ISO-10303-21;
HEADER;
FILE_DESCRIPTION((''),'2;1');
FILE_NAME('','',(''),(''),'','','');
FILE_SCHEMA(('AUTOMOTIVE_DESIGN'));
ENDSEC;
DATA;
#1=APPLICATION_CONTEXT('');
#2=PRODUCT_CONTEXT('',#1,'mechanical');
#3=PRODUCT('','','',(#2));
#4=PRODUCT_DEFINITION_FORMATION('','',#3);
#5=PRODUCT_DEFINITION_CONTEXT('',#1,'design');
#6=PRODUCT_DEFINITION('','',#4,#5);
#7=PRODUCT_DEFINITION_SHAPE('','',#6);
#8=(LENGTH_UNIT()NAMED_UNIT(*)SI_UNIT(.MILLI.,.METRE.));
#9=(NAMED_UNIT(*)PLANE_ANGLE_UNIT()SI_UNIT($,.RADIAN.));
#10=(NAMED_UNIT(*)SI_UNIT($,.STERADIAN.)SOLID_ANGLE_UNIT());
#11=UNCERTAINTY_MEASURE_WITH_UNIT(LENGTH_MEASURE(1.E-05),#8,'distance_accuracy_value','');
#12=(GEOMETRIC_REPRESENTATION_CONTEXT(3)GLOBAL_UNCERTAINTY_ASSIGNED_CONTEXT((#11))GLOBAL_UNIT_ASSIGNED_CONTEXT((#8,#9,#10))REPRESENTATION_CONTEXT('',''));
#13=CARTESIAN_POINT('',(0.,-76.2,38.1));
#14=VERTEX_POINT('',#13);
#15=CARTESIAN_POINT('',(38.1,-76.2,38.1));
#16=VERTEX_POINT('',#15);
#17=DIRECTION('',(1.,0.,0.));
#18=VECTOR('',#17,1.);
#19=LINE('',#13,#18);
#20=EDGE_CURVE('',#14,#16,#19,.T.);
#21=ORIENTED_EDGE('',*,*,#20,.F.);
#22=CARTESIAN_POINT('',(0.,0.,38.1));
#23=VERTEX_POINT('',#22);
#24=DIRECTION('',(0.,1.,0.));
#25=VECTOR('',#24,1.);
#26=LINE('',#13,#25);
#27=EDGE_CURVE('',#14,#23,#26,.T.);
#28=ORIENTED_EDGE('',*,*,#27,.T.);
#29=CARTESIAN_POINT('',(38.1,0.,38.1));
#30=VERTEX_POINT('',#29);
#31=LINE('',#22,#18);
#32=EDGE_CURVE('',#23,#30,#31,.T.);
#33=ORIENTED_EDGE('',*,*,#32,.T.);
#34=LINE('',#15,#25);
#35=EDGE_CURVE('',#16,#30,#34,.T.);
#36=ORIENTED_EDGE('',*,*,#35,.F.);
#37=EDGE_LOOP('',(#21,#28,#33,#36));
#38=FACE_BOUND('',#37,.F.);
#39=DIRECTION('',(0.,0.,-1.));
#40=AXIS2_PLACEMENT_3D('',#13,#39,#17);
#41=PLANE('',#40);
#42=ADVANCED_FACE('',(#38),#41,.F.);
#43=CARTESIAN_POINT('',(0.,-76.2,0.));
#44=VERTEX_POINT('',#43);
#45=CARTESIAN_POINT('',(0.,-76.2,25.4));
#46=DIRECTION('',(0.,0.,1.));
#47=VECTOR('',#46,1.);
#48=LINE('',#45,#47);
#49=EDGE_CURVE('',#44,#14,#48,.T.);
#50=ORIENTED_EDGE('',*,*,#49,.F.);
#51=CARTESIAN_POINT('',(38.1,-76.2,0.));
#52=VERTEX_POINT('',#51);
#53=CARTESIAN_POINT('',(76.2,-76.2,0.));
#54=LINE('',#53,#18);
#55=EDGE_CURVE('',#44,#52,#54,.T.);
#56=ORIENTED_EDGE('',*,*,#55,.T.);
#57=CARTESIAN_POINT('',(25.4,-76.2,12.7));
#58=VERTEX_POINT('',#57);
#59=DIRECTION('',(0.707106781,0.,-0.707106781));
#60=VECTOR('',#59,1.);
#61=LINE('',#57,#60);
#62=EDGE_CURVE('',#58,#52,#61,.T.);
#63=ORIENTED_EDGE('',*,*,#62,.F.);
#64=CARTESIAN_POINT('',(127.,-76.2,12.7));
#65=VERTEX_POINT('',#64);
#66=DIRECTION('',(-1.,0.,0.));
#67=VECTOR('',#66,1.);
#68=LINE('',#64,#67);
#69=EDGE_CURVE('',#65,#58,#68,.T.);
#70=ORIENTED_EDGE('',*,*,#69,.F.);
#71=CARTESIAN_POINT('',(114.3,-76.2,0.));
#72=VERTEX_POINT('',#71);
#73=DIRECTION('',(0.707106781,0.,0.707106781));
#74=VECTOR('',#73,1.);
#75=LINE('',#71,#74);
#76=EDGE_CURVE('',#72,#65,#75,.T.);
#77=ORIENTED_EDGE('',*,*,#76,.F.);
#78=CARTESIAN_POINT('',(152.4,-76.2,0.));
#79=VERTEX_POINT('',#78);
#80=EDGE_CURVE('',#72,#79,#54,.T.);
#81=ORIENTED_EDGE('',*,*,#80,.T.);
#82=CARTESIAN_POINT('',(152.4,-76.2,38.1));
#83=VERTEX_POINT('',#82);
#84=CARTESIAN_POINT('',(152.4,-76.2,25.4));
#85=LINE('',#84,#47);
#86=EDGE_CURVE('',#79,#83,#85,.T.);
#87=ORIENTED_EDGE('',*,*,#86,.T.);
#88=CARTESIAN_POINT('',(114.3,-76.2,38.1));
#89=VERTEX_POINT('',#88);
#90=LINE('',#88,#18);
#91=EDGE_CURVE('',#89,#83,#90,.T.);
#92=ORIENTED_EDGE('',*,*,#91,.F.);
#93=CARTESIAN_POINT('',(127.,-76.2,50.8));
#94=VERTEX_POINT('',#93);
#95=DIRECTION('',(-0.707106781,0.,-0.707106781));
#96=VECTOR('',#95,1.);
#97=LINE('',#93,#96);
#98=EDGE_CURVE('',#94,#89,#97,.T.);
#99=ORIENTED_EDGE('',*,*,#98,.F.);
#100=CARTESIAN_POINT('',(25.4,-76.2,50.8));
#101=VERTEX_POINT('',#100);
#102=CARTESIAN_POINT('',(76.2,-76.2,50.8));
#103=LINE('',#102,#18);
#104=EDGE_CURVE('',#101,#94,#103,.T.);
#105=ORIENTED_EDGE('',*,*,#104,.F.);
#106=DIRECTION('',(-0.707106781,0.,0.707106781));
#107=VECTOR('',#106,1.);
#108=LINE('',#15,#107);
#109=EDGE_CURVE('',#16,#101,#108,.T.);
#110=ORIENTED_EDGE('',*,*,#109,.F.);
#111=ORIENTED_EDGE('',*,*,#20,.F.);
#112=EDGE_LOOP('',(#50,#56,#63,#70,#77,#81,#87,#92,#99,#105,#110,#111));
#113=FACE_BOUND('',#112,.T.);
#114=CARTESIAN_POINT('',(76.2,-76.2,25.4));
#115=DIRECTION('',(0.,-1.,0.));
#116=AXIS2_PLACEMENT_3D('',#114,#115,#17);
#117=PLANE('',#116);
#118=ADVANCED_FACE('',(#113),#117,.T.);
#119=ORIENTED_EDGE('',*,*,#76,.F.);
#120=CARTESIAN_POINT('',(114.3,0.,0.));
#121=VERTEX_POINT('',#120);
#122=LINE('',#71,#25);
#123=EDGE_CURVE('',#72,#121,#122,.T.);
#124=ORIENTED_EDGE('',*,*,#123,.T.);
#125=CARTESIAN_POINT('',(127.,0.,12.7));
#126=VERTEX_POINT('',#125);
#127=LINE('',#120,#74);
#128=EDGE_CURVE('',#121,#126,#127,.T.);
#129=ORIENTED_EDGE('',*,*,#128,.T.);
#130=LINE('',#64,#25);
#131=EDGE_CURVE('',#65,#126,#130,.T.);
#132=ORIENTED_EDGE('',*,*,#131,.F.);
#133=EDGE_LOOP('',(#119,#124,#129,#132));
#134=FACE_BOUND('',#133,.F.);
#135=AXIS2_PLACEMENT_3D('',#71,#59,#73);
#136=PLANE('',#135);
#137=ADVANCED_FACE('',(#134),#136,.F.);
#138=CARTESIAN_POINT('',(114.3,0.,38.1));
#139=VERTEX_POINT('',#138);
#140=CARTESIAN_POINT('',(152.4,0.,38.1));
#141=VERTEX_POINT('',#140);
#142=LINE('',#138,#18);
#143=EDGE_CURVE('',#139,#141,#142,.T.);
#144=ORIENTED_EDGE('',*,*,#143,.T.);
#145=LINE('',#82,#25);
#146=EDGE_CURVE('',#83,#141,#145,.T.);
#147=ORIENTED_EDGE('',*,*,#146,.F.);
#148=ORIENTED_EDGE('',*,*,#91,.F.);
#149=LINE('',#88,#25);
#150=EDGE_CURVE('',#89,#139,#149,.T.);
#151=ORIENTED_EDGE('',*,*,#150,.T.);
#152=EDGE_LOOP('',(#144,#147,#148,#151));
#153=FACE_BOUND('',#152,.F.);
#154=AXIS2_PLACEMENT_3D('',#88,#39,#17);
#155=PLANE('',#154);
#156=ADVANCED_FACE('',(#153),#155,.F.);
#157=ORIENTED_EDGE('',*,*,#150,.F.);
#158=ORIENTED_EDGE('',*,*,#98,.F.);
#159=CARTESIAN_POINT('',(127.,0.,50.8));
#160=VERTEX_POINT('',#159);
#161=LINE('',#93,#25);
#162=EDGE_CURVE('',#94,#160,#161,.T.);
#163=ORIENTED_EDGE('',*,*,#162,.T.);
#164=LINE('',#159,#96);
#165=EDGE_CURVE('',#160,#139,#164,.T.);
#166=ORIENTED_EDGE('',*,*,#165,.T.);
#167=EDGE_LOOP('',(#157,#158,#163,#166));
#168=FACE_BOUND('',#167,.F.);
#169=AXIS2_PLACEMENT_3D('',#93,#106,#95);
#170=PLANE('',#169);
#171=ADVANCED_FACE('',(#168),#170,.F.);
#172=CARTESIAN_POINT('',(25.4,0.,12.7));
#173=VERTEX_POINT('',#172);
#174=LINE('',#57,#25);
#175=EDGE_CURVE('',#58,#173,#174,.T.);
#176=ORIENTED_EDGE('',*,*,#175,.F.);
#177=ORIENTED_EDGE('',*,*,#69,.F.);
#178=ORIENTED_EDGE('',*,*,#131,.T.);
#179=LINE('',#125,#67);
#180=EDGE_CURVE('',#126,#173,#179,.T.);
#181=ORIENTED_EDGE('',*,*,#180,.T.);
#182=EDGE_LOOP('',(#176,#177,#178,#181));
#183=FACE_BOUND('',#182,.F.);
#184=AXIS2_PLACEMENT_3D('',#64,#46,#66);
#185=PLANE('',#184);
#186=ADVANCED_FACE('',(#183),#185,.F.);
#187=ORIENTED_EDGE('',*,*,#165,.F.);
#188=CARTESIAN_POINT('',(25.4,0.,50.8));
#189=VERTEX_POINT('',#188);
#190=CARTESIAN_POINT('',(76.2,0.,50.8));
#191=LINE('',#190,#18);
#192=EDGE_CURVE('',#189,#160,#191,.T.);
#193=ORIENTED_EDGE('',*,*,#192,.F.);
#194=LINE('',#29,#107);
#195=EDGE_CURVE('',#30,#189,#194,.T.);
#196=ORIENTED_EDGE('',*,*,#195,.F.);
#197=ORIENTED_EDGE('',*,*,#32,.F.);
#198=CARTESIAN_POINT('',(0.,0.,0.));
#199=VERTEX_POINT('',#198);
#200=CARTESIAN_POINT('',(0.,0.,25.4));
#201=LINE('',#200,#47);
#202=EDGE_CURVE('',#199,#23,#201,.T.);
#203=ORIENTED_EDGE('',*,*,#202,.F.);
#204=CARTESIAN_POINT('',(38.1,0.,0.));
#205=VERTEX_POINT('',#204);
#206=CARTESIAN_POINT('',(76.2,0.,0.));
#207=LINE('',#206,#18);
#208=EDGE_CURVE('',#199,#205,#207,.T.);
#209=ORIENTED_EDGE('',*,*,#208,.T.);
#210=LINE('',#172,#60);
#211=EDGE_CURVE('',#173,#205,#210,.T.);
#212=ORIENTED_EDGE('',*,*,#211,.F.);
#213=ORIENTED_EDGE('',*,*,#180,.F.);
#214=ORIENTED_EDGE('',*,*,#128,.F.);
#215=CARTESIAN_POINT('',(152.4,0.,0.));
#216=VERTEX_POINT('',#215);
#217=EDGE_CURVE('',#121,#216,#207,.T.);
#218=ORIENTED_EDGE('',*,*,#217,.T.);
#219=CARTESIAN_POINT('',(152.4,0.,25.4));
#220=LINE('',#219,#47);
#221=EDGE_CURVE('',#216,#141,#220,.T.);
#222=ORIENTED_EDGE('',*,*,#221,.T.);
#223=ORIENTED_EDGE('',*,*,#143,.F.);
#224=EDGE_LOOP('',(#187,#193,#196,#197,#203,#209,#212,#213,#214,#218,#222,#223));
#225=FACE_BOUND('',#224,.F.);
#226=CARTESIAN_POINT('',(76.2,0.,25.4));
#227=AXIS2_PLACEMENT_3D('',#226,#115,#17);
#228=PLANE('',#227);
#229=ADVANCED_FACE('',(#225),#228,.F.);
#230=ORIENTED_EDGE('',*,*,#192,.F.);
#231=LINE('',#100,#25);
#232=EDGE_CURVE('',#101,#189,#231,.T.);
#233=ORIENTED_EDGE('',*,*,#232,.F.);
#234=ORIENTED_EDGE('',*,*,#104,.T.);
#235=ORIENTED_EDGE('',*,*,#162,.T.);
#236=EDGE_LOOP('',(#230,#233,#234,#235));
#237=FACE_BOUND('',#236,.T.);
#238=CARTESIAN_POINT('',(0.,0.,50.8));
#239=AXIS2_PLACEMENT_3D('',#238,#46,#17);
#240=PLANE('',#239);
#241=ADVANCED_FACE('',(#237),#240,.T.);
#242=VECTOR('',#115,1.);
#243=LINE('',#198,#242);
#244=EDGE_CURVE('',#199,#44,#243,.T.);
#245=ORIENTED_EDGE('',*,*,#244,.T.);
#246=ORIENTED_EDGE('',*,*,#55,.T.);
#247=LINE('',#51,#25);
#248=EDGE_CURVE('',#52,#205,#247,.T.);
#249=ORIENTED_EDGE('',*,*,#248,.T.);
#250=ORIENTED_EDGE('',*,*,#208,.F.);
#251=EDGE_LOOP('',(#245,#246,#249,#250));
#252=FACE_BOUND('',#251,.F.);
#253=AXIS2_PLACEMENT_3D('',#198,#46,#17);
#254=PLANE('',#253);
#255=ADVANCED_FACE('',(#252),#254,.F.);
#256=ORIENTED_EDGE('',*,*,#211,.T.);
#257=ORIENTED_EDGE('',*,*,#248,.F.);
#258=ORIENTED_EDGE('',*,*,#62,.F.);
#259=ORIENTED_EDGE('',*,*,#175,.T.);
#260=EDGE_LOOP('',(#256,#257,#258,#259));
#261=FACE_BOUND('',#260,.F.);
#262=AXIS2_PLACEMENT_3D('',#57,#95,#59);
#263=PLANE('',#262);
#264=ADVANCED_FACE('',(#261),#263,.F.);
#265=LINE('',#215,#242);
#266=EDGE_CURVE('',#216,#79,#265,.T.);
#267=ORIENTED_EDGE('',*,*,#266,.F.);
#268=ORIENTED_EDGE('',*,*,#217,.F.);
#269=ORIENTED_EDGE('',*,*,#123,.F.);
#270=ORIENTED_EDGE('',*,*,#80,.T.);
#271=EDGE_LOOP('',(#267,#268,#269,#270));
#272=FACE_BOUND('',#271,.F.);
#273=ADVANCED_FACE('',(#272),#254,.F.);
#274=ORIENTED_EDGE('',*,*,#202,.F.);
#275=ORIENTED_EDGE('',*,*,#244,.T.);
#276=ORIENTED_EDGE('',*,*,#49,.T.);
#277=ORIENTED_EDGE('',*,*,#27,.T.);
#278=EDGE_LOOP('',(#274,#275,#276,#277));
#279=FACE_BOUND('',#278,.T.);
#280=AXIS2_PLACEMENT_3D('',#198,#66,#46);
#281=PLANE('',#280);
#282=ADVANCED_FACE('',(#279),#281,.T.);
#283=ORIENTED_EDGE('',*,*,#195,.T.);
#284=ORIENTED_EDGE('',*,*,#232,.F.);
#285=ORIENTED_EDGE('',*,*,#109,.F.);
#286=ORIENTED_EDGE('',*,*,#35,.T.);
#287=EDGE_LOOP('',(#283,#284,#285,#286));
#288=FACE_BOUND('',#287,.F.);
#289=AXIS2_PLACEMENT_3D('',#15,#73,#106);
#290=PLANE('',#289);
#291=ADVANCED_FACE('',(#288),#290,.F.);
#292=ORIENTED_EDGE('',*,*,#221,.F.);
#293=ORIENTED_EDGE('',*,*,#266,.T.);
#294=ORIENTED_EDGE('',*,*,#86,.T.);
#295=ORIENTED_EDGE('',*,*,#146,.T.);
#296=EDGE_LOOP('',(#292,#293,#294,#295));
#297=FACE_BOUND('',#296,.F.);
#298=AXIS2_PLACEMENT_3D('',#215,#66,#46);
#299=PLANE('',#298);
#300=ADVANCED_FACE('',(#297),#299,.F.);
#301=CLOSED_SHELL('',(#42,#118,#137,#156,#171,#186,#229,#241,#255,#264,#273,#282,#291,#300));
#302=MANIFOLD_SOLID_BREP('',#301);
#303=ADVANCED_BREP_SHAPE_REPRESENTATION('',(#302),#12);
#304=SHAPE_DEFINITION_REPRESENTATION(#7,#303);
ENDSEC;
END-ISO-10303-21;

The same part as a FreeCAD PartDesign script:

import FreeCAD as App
import Part
import Sketcher
from FreeCAD import Vector
Q = App.Units.Quantity

doc = App.newDocument("Part")
params = doc.addObject("Spreadsheet::Sheet", "Params")
for row, (alias, value) in enumerate([
    ("sketch1_width", "6 in"),
    ("sketch1_height", "2 in"),
    ("pad1_length", "3 in"),
    ("sketch2_width", "1 in"),
    ("sketch2_width2", "1.5 in"),
    ("sketch2_height", "0.5 in"),
    ("pocket1_length", "3 in"),
    ("sketch3_width", "1 in"),
    ("sketch3_width2", "1.5 in"),
    ("sketch3_height", "0.5 in"),
    ("pocket2_length", "3 in"),
    ("sketch4_width", "4 in"),
    ("sketch4_width2", "3 in"),
    ("pocket3_length", "3 in"),
], start=1):
    params.set(f"A{row}", alias)
    params.set(f"B{row}", "=" + value)
    params.setAlias(f"B{row}", alias)

body = doc.addObject("PartDesign::Body", "Body")

# Sketch on XZ plane
sketch1 = doc.addObject("Sketcher::SketchObject", "Sketch")
body.addObject(sketch1)
sketch1.AttachmentSupport = (doc.XZ_Plane, [""])
sketch1.MapMode = "FlatFace"
sketch1.addGeometry(Part.LineSegment(Vector(0, 51, 0), Vector(0, 0, 0)), False)
sketch1.addGeometry(Part.LineSegment(Vector(0, 0, 0), Vector(152, 0, 0)), False)
sketch1.addGeometry(Part.LineSegment(Vector(152, 0, 0), Vector(152, 51, 0)), False)
sketch1.addGeometry(Part.LineSegment(Vector(152, 51, 0), Vector(0, 51, 0)), False)
sketch1.addConstraint(Sketcher.Constraint("Coincident", 0, 2, 1, 1))
sketch1.addConstraint(Sketcher.Constraint("Coincident", 1, 2, 2, 1))
sketch1.addConstraint(Sketcher.Constraint("Coincident", 2, 2, 3, 1))
sketch1.addConstraint(Sketcher.Constraint("Coincident", 3, 2, 0, 1))
sketch1.addConstraint(Sketcher.Constraint("Vertical", 0))
sketch1.addConstraint(Sketcher.Constraint("Horizontal", 1))
sketch1.addConstraint(Sketcher.Constraint("Vertical", 2))
sketch1.addConstraint(Sketcher.Constraint("Horizontal", 3))
sketch1.addConstraint(Sketcher.Constraint("Coincident", 0, 2, -1, 1))
sketch1.addConstraint(Sketcher.Constraint("DistanceX", 1, 1, 1, 2, Q("6 in")))
sketch1.addConstraint(Sketcher.Constraint("DistanceY", 0, 2, 0, 1, Q("2 in")))
sketch1.setExpression("Constraints[9]", "Params.sketch1_width")
sketch1.setExpression("Constraints[10]", "Params.sketch1_height")
pad1 = doc.addObject("PartDesign::Pad", "Pad")
body.addObject(pad1)
pad1.Profile = sketch1
pad1.setExpression("Length", "Params.pad1_length")

# Sketch on XZ plane
sketch2 = doc.addObject("Sketcher::SketchObject", "Sketch001")
body.addObject(sketch2)
sketch2.AttachmentSupport = (doc.XZ_Plane, [""])
sketch2.MapMode = "FlatFace"
sketch2.AttachmentOffset = App.Placement(Vector(0, 0, 3 * 25.4), App.Rotation())
sketch2.addGeometry(Part.LineSegment(Vector(152, 38, 0), Vector(152, 51, 0)), False)
sketch2.addGeometry(Part.LineSegment(Vector(152, 51, 0), Vector(127, 51, 0)), False)
sketch2.addGeometry(Part.LineSegment(Vector(127, 51, 0), Vector(114, 38, 0)), False)
sketch2.addGeometry(Part.LineSegment(Vector(114, 38, 0), Vector(152, 38, 0)), False)
sketch2.addConstraint(Sketcher.Constraint("Coincident", 0, 2, 1, 1))
sketch2.addConstraint(Sketcher.Constraint("Coincident", 1, 2, 2, 1))
sketch2.addConstraint(Sketcher.Constraint("Coincident", 2, 2, 3, 1))
sketch2.addConstraint(Sketcher.Constraint("Coincident", 3, 2, 0, 1))
sketch2.addConstraint(Sketcher.Constraint("Vertical", 0))
sketch2.addConstraint(Sketcher.Constraint("Horizontal", 1))
sketch2.addConstraint(Sketcher.Constraint("Horizontal", 3))
sketch2.addConstraint(Sketcher.Constraint("DistanceX", 1, 2, 1, 1, Q("1 in")))
sketch2.addConstraint(Sketcher.Constraint("DistanceX", 3, 1, 3, 2, Q("1.5 in")))
sketch2.addConstraint(Sketcher.Constraint("DistanceY", 0, 1, 0, 2, Q("0.5 in")))
sketch2.addConstraint(Sketcher.Constraint("DistanceX", -1, 1, 0, 2, Q("6 in")))
sketch2.addConstraint(Sketcher.Constraint("DistanceY", -1, 1, 0, 2, Q("2 in")))
sketch2.setExpression("Constraints[7]", "Params.sketch2_width")
sketch2.setExpression("Constraints[8]", "Params.sketch2_width2")
sketch2.setExpression("Constraints[9]", "Params.sketch2_height")
pocket1 = doc.addObject("PartDesign::Pocket", "Pocket")
body.addObject(pocket1)
pocket1.Profile = sketch2
pocket1.setExpression("Length", "Params.pocket1_length")

# Sketch on XZ plane
sketch3 = doc.addObject("Sketcher::SketchObject", "Sketch002")
body.addObject(sketch3)
sketch3.AttachmentSupport = (doc.XZ_Plane, [""])
sketch3.MapMode = "FlatFace"
sketch3.AttachmentOffset = App.Placement(Vector(0, 0, 3 * 25.4), App.Rotation())
sketch3.addGeometry(Part.LineSegment(Vector(25, 51, 0), Vector(0, 51, 0)), False)
sketch3.addGeometry(Part.LineSegment(Vector(0, 51, 0), Vector(0, 38, 0)), False)
sketch3.addGeometry(Part.LineSegment(Vector(0, 38, 0), Vector(38, 38, 0)), False)
sketch3.addGeometry(Part.LineSegment(Vector(38, 38, 0), Vector(25, 51, 0)), False)
sketch3.addConstraint(Sketcher.Constraint("Coincident", 0, 2, 1, 1))
sketch3.addConstraint(Sketcher.Constraint("Coincident", 1, 2, 2, 1))
sketch3.addConstraint(Sketcher.Constraint("Coincident", 2, 2, 3, 1))
sketch3.addConstraint(Sketcher.Constraint("Coincident", 3, 2, 0, 1))
sketch3.addConstraint(Sketcher.Constraint("Horizontal", 0))
sketch3.addConstraint(Sketcher.Constraint("Vertical", 1))
sketch3.addConstraint(Sketcher.Constraint("Horizontal", 2))
sketch3.addConstraint(Sketcher.Constraint("PointOnObject", 0, 2, -2))
sketch3.addConstraint(Sketcher.Constraint("DistanceX", 0, 2, 0, 1, Q("1 in")))
sketch3.addConstraint(Sketcher.Constraint("DistanceX", 2, 1, 2, 2, Q("1.5 in")))
sketch3.addConstraint(Sketcher.Constraint("DistanceY", 1, 2, 1, 1, Q("0.5 in")))
sketch3.addConstraint(Sketcher.Constraint("DistanceY", -1, 1, 0, 2, Q("2 in")))
sketch3.setExpression("Constraints[8]", "Params.sketch3_width")
sketch3.setExpression("Constraints[9]", "Params.sketch3_width2")
sketch3.setExpression("Constraints[10]", "Params.sketch3_height")
pocket2 = doc.addObject("PartDesign::Pocket", "Pocket001")
body.addObject(pocket2)
pocket2.Profile = sketch3
pocket2.setExpression("Length", "Params.pocket2_length")

# Sketch on XZ plane
sketch4 = doc.addObject("Sketcher::SketchObject", "Sketch003")
body.addObject(sketch4)
sketch4.AttachmentSupport = (doc.XZ_Plane, [""])
sketch4.MapMode = "FlatFace"
sketch4.AttachmentOffset = App.Placement(Vector(0, 0, 3 * 25.4), App.Rotation())
sketch4.addGeometry(Part.LineSegment(Vector(127, 13, 0), Vector(25, 13, 0)), False)
sketch4.addGeometry(Part.LineSegment(Vector(25, 13, 0), Vector(38, 0, 0)), False)
sketch4.addGeometry(Part.LineSegment(Vector(38, 0, 0), Vector(114, 0, 0)), False)
sketch4.addGeometry(Part.LineSegment(Vector(114, 0, 0), Vector(127, 13, 0)), False)
sketch4.addConstraint(Sketcher.Constraint("Coincident", 0, 2, 1, 1))
sketch4.addConstraint(Sketcher.Constraint("Coincident", 1, 2, 2, 1))
sketch4.addConstraint(Sketcher.Constraint("Coincident", 2, 2, 3, 1))
sketch4.addConstraint(Sketcher.Constraint("Coincident", 3, 2, 0, 1))
sketch4.addConstraint(Sketcher.Constraint("Horizontal", 0))
sketch4.addConstraint(Sketcher.Constraint("Horizontal", 2))
sketch4.addConstraint(Sketcher.Constraint("PointOnObject", 1, 2, -1))
sketch4.addConstraint(Sketcher.Constraint("Perpendicular", 1, 3))
sketch4.addConstraint(Sketcher.Constraint("Equal", 1, 3))
sketch4.addConstraint(Sketcher.Constraint("DistanceX", 0, 2, 0, 1, Q("4 in")))
sketch4.addConstraint(Sketcher.Constraint("DistanceX", 2, 1, 2, 2, Q("3 in")))
sketch4.addConstraint(Sketcher.Constraint("DistanceX", -1, 1, 0, 2, Q("1 in")))
sketch4.setExpression("Constraints[9]", "Params.sketch4_width")
sketch4.setExpression("Constraints[10]", "Params.sketch4_width2")
pocket3 = doc.addObject("PartDesign::Pocket", "Pocket002")
body.addObject(pocket3)
pocket3.Profile = sketch4
pocket3.setExpression("Length", "Params.pocket3_length")

doc.recompute()
